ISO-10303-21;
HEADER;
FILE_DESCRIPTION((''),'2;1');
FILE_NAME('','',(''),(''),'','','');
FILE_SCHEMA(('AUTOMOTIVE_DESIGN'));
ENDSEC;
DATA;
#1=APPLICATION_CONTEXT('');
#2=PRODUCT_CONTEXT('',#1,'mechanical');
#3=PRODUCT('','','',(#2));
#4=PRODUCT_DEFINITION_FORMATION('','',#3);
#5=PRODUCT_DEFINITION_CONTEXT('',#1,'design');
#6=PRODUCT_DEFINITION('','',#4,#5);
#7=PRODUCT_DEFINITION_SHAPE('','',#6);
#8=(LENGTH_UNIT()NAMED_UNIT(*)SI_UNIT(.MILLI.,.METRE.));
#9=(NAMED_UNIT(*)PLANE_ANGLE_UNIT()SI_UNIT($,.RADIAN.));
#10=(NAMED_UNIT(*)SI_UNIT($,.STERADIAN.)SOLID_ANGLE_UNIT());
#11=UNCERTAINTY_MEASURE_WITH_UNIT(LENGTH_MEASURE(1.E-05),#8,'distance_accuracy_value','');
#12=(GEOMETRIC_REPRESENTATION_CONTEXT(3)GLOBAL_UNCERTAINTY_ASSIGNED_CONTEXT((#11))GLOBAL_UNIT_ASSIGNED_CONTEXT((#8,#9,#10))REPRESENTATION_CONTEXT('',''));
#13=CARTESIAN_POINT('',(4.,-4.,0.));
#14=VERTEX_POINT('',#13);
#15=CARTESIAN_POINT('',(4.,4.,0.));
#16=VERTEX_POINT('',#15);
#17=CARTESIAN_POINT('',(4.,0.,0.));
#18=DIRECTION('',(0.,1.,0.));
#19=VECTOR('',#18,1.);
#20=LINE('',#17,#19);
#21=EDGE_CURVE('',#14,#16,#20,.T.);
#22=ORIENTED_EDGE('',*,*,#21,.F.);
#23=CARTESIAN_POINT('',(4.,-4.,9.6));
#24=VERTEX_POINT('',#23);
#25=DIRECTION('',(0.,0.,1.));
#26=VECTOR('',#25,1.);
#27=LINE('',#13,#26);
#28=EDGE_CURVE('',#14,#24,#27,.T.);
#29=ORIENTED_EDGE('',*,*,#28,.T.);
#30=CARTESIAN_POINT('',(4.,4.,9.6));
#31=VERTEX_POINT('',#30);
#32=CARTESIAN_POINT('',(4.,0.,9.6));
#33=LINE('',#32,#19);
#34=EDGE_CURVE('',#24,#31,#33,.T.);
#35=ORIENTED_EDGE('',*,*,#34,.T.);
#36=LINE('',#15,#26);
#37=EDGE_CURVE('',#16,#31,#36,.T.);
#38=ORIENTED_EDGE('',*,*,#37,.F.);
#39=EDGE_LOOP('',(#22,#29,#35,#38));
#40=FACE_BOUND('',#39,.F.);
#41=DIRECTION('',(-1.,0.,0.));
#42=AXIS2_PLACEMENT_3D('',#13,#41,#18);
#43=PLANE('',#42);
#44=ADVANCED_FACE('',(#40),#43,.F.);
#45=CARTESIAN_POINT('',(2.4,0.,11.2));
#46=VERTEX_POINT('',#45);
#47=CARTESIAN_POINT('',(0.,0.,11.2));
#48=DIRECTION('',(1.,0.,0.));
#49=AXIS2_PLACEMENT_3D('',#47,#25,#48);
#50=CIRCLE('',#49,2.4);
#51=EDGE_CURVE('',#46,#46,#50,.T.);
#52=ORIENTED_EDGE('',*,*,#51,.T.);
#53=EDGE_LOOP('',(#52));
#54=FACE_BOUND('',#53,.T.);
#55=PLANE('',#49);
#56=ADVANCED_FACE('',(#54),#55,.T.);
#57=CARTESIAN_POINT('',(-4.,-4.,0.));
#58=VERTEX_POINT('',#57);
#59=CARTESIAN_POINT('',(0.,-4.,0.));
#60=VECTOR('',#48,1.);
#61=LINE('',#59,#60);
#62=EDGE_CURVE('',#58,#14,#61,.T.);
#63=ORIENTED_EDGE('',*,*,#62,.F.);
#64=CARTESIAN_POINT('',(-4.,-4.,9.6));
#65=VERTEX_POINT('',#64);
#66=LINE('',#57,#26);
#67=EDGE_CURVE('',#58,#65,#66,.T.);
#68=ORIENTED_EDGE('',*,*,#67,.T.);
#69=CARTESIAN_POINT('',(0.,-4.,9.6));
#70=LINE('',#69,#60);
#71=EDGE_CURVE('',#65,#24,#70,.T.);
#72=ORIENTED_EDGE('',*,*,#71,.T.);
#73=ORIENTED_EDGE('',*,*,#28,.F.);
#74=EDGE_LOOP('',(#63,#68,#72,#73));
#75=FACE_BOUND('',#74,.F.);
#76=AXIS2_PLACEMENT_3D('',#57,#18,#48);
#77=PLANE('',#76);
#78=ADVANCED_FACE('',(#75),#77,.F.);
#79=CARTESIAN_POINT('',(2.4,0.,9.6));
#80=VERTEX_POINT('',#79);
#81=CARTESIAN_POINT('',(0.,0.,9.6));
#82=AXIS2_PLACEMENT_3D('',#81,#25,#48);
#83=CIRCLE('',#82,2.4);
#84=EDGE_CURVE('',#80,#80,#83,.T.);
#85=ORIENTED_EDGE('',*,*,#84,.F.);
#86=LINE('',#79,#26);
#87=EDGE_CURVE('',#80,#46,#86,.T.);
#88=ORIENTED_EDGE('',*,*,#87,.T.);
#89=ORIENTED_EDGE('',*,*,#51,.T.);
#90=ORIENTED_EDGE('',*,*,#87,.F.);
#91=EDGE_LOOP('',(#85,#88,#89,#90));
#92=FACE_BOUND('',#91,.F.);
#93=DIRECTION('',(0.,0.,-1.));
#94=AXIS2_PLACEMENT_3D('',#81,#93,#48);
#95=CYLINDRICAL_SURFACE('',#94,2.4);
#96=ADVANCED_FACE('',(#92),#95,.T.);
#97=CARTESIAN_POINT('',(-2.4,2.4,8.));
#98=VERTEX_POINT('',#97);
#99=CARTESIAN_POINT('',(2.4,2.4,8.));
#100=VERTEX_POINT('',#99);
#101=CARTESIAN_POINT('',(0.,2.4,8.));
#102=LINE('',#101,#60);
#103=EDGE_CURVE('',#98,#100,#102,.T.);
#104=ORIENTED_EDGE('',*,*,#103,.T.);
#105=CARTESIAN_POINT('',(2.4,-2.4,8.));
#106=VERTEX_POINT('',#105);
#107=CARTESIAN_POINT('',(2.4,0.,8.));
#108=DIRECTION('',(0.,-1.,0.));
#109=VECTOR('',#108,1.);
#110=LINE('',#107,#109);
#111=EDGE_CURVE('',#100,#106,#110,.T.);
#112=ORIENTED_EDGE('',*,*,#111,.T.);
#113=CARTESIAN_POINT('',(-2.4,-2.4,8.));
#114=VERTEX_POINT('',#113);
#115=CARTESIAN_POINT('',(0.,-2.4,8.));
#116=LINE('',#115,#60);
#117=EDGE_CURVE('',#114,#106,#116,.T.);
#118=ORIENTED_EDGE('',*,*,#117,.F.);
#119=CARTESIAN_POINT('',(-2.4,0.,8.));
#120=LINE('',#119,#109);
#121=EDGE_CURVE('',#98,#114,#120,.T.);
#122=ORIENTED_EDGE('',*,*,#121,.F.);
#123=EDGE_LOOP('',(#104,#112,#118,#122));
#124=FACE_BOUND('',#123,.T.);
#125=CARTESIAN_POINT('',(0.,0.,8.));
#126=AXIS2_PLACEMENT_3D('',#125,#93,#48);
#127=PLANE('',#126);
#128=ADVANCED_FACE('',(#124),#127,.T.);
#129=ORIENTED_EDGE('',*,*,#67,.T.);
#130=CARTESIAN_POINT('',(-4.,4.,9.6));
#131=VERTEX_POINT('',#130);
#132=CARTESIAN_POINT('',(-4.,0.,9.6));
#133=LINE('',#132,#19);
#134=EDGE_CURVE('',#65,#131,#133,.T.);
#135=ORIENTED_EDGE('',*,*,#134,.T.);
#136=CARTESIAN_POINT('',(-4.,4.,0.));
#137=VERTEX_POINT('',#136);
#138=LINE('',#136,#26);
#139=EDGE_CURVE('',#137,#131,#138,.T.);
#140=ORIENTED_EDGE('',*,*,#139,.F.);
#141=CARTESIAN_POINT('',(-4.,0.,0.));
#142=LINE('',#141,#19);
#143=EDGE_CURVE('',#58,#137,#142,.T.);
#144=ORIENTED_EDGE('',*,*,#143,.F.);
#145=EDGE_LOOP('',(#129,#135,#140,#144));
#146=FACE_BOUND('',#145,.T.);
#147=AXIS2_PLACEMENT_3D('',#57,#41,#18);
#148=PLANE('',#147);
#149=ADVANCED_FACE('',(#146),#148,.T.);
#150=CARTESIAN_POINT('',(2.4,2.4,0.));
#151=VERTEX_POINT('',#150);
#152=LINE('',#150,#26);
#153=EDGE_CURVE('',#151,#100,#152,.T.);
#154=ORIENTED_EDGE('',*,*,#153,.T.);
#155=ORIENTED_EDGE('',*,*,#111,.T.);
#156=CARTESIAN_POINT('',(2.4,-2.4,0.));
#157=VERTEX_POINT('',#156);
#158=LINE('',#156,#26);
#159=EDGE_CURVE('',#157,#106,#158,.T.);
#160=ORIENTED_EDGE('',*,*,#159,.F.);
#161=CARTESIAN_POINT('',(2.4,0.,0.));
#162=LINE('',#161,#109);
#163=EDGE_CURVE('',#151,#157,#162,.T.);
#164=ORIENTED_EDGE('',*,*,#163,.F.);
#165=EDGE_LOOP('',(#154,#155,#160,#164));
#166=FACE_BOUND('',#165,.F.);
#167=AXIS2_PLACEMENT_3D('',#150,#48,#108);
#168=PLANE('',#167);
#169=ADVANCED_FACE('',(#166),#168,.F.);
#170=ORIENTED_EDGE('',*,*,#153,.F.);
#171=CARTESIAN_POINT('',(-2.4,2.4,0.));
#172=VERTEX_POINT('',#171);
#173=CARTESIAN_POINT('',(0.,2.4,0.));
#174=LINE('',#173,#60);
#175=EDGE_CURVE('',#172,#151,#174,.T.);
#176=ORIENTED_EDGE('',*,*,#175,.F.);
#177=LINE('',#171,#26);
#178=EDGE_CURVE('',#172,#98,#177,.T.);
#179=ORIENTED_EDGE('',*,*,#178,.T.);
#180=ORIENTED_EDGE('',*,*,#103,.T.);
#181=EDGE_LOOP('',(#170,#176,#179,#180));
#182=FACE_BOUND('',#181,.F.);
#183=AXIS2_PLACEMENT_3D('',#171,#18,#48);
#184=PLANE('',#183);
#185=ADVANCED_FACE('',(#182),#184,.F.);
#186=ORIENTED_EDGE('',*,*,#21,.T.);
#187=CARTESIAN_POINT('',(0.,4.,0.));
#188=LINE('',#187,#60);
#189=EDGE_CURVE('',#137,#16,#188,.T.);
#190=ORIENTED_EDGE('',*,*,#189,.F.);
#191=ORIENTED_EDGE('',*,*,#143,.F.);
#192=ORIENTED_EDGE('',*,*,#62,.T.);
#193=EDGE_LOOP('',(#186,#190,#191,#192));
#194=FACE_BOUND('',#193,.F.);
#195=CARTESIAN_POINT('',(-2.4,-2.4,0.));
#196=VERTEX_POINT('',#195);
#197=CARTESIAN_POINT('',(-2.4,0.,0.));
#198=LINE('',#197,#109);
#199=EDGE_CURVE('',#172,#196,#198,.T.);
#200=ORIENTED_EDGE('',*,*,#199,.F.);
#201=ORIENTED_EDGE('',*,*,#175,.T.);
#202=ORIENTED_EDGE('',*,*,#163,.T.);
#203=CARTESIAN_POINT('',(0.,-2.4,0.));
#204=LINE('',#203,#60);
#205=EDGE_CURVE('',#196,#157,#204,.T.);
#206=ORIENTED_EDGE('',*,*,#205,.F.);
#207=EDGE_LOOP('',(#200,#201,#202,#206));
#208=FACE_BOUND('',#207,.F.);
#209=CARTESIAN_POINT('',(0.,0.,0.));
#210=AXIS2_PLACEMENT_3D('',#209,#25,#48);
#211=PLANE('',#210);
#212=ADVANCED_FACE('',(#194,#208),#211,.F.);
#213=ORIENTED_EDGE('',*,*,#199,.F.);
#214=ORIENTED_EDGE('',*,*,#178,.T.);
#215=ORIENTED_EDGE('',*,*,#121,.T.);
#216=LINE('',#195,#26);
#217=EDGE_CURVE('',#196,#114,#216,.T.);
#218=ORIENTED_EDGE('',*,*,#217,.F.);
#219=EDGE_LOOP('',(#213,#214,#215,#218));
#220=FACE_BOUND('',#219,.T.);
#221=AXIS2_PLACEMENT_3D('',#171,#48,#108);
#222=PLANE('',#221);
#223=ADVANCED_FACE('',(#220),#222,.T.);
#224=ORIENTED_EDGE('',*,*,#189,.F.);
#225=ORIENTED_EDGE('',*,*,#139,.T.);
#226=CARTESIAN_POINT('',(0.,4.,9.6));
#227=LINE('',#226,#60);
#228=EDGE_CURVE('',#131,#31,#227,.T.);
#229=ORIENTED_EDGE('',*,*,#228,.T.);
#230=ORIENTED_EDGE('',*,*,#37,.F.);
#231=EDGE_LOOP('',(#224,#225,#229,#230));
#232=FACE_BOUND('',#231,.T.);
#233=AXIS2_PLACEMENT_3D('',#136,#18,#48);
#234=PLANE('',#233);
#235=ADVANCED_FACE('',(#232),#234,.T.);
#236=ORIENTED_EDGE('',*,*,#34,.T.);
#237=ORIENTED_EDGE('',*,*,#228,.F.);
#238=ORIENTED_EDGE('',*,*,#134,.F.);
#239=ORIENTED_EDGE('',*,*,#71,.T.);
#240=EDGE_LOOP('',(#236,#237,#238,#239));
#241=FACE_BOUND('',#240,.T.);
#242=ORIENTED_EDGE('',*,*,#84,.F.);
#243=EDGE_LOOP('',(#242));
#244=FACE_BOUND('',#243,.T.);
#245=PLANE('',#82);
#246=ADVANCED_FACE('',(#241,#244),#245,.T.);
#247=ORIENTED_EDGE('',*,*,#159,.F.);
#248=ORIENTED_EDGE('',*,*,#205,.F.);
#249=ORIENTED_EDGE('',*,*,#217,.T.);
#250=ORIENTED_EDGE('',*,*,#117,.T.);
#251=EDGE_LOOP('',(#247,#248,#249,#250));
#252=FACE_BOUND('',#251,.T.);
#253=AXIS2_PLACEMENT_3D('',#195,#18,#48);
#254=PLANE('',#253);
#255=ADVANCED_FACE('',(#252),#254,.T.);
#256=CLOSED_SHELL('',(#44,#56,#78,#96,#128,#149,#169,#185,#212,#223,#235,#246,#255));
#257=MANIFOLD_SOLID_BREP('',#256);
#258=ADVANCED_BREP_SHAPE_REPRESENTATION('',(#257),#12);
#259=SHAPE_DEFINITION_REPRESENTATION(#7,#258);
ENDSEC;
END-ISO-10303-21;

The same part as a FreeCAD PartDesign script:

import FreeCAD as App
import Part
import Sketcher
from FreeCAD import Vector
Q = App.Units.Quantity

doc = App.newDocument("Part")
body = doc.addObject("PartDesign::Body", "Body")

sketch1 = body.newObject("Sketcher::SketchObject", "Sketch")
sketch1.AttachmentSupport = (doc.getObject("XY_Plane"), [""])
sketch1.MapMode = "FlatFace"
sketch1.addGeometry(Part.LineSegment(Vector(-4, 4, 0), Vector(-4, -4, 0)), False)
sketch1.addGeometry(Part.LineSegment(Vector(-4, -4, 0), Vector(4, -4, 0)), False)
sketch1.addGeometry(Part.LineSegment(Vector(4, -4, 0), Vector(4, 4, 0)), False)
sketch1.addGeometry(Part.LineSegment(Vector(4, 4, 0), Vector(-4, 4, 0)), False)
sketch1.addConstraint(Sketcher.Constraint("Coincident", 0, 2, 1, 1))
sketch1.addConstraint(Sketcher.Constraint("Coincident", 1, 2, 2, 1))
sketch1.addConstraint(Sketcher.Constraint("Coincident", 2, 2, 3, 1))
sketch1.addConstraint(Sketcher.Constraint("Coincident", 3, 2, 0, 1))
sketch1.addConstraint(Sketcher.Constraint("Vertical", 0))
sketch1.addConstraint(Sketcher.Constraint("Horizontal", 1))
sketch1.addConstraint(Sketcher.Constraint("Vertical", 2))
sketch1.addConstraint(Sketcher.Constraint("Horizontal", 3))
sketch1.addConstraint(Sketcher.Constraint("Symmetric", 0, 2, 2, 2, -1, 1))
sketch1.addConstraint(Sketcher.Constraint("Equal", 3, 0))
sketch1.addConstraint(Sketcher.Constraint("DistanceX", 1, 1, 1, 2, Q("8 mm")))
pad1 = body.newObject("PartDesign::Pad", "Pad")
pad1.Profile = sketch1
pad1.Length = 9.6

sketch2 = body.newObject("Sketcher::SketchObject", "Sketch001")
sketch2.AttachmentSupport = (doc.getObject("XY_Plane"), [""])
sketch2.MapMode = "FlatFace"
sketch2.addGeometry(Part.LineSegment(Vector(-2.4, -2.4, 0), Vector(-2.4, 2.4, 0)), False)
sketch2.addGeometry(Part.LineSegment(Vector(-2.4, 2.4, 0), Vector(2.4, 2.4, 0)), False)
sketch2.addGeometry(Part.LineSegment(Vector(2.4, 2.4, 0), Vector(2.4, -2.4, 0)), False)
sketch2.addGeometry(Part.LineSegment(Vector(2.4, -2.4, 0), Vector(-2.4, -2.4, 0)), False)
sketch2.addConstraint(Sketcher.Constraint("Coincident", 0, 2, 1, 1))
sketch2.addConstraint(Sketcher.Constraint("Coincident", 1, 2, 2, 1))
sketch2.addConstraint(Sketcher.Constraint("Coincident", 2, 2, 3, 1))
sketch2.addConstraint(Sketcher.Constraint("Coincident", 3, 2, 0, 1))
sketch2.addConstraint(Sketcher.Constraint("Vertical", 0))
sketch2.addConstraint(Sketcher.Constraint("Horizontal", 1))
sketch2.addConstraint(Sketcher.Constraint("Vertical", 2))
sketch2.addConstraint(Sketcher.Constraint("Horizontal", 3))
sketch2.addConstraint(Sketcher.Constraint("Symmetric", 0, 2, 2, 2, -1, 1))
sketch2.addConstraint(Sketcher.Constraint("Equal", 3, 0))
sketch2.addConstraint(Sketcher.Constraint("DistanceX", 1, 1, 1, 2, Q("4.8 mm")))
pocket1 = body.newObject("PartDesign::Pocket", "Pocket")
pocket1.Profile = sketch2
pocket1.Length = 8
pocket1.Reversed = True

sketch3 = body.newObject("Sketcher::SketchObject", "Sketch002")
sketch3.AttachmentSupport = (doc.getObject("XY_Plane"), [""])
sketch3.MapMode = "FlatFace"
sketch3.AttachmentOffset = App.Placement(Vector(0, 0, 9.6), App.Rotation())
sketch3.addGeometry(Part.Circle(Vector(0, 0, 0), Vector(0, 0, 1), 2.4), False)
sketch3.addConstraint(Sketcher.Constraint("Coincident", 0, 3, -1, 1))
sketch3.addConstraint(Sketcher.Constraint("Diameter", 0, Q("4.8 mm")))
pad2 = body.newObject("PartDesign::Pad", "Pad001")
pad2.Profile = sketch3
pad2.Length = 1.6

doc.recompute()
